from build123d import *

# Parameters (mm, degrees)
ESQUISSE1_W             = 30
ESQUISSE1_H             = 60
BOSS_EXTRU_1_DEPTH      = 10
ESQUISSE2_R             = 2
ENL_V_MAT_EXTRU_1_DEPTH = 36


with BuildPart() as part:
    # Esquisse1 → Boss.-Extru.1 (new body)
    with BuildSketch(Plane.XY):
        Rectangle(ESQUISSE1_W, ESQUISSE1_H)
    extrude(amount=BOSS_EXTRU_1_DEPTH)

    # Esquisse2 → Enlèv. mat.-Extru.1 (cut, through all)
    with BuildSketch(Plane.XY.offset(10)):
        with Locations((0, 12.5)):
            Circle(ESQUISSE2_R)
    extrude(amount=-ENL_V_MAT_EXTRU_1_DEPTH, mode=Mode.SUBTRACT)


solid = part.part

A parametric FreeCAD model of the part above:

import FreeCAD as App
import Part
import Sketcher

V = App.Vector
Q = App.Units.Quantity


def add_polygon(sketch, points):
    """Adds a closed chain of lines whose ends are joined by coincident constraints."""
    first, n = sketch.GeometryCount, len(points)
    for a, b in zip(points, points[1:] + points[:1]):
        sketch.addGeometry(Part.LineSegment(App.Vector(*a, 0), App.Vector(*b, 0)), False)
    for i in range(n):
        sketch.addConstraint(Sketcher.Constraint("Coincident", first + i, 2, first + (i + 1) % n, 1))

doc = App.newDocument("Part")
body = doc.addObject("PartDesign::Body", "Body")

sketch1 = body.newObject("Sketcher::SketchObject", "Sketch")
sketch1.AttachmentSupport = (doc.getObject("XY_Plane"), [""])
sketch1.MapMode = "FlatFace"
add_polygon(sketch1, [(-15, 30), (-15, -30), (15, -30), (15, 30)])
sketch1.addConstraint([
    Sketcher.Constraint("Vertical", 0),
    Sketcher.Constraint("Horizontal", 1),
    Sketcher.Constraint("Vertical", 2),
    Sketcher.Constraint("Horizontal", 3),
    Sketcher.Constraint("Symmetric", 0, 2, 2, 2, -1, 1),
    Sketcher.Constraint("DistanceX", 1, 1, 1, 2, Q("30 mm")),
    Sketcher.Constraint("DistanceY", 0, 2, 0, 1, Q("60 mm")),
])
pad1 = body.newObject("PartDesign::Pad", "Pad")
pad1.Profile = sketch1
pad1.Length = 10

sketch2 = body.newObject("Sketcher::SketchObject", "Sketch001")
sketch2.AttachmentSupport = (doc.getObject("XY_Plane"), [""])
sketch2.MapMode = "FlatFace"
sketch2.AttachmentOffset = App.Placement(V(0, 0, 10), App.Rotation())
sketch2.addGeometry(Part.Circle(V(0, 12.5, 0), V(0, 0, 1), 2), False)
sketch2.addConstraint([
    Sketcher.Constraint("PointOnObject", 0, 3, -2),
    Sketcher.Constraint("Diameter", 0, Q("4 mm")),
    Sketcher.Constraint("DistanceY", -1, 1, 0, 3, Q("12.5 mm")),
])
pocket1 = body.newObject("PartDesign::Pocket", "Pocket")
pocket1.Profile = sketch2
pocket1.Type = "ThroughAll"

doc.recompute()
